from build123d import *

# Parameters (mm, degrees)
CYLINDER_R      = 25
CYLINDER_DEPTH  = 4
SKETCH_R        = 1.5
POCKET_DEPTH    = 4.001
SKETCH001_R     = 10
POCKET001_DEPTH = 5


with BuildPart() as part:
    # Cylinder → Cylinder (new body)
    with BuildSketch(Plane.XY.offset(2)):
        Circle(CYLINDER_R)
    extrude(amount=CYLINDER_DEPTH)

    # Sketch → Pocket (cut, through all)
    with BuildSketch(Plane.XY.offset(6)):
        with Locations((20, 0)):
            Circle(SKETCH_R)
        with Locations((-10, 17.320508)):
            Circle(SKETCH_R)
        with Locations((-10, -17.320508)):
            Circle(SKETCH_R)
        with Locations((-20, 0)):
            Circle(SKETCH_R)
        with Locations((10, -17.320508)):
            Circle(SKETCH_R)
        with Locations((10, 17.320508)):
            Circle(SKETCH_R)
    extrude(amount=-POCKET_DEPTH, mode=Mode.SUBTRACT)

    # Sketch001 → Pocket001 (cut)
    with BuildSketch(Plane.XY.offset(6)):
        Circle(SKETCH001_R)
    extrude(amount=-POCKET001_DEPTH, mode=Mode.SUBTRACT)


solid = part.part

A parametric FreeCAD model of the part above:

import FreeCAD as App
import Part
import Sketcher

V = App.Vector

doc = App.newDocument("Part")
params = doc.addObject("Spreadsheet::Sheet", "Params")
for row, (alias, value) in enumerate([
    ("sketch1_diameter", "50 mm"),
    ("pad1_length", "4 mm"),
    ("sketch2_diameter", "3 mm"),
    ("sketch3_diameter", "20 mm"),
    ("pocket2_length", "5 mm"),
], start=1):
    params.set(f"A{row}", alias)
    params.set(f"B{row}", "=" + value)
    params.setAlias(f"B{row}", alias)

body = doc.addObject("PartDesign::Body", "Body")

# Sketch on XY plane
sketch1 = body.newObject("Sketcher::SketchObject", "Sketch")
sketch1.AttachmentSupport = (doc.getObject("XY_Plane"), [""])
sketch1.MapMode = "FlatFace"
sketch1.AttachmentOffset = App.Placement(V(0, 0, 2), App.Rotation())
sketch1.addGeometry(Part.Circle(V(0, 0, 0), V(0, 0, 1), 25), False)
sketch1.addConstraint(Sketcher.Constraint("Coincident", 0, 3, -1, 1))
sketch1.addConstraint(Sketcher.Constraint("Diameter", 0, 50.0))
sketch1.setExpression("Constraints[1]", "Params.sketch1_diameter")
pad1 = body.newObject("PartDesign::Pad", "Pad")
pad1.Profile = sketch1
pad1.setExpression("Length", "Params.pad1_length")

# Sketch on XY plane
sketch2 = body.newObject("Sketcher::SketchObject", "Sketch001")
sketch2.AttachmentSupport = (doc.getObject("XY_Plane"), [""])
sketch2.MapMode = "FlatFace"
sketch2.AttachmentOffset = App.Placement(V(0, 0, 6), App.Rotation())
sketch2.addGeometry(Part.Circle(V(20, 0, 0), V(0, 0, 1), 1.5), False)
sketch2.addGeometry(Part.Circle(V(-10, 17.3, 0), V(0, 0, 1), 1.5), False)
sketch2.addGeometry(Part.Circle(V(-10, -17.3, 0), V(0, 0, 1), 1.5), False)
sketch2.addGeometry(Part.Circle(V(-20, 0, 0), V(0, 0, 1), 1.5), False)
sketch2.addGeometry(Part.Circle(V(10, -17.3, 0), V(0, 0, 1), 1.5), False)
sketch2.addGeometry(Part.Circle(V(10, 17.3, 0), V(0, 0, 1), 1.5), False)
sketch2.addConstraint(Sketcher.Constraint("Equal", 0, 1))
sketch2.addConstraint(Sketcher.Constraint("Equal", 1, 2))
sketch2.addConstraint(Sketcher.Constraint("Equal", 2, 3))
sketch2.addConstraint(Sketcher.Constraint("Equal", 3, 4))
sketch2.addConstraint(Sketcher.Constraint("Equal", 4, 5))
sketch2.addConstraint(Sketcher.Constraint("Symmetric", 0, 3, 3, 3, -1, 1))
sketch2.addConstraint(Sketcher.Constraint("Symmetric", 1, 3, 4, 3, -1, 1))
sketch2.addConstraint(Sketcher.Constraint("Symmetric", 2, 3, 5, 3, -1, 1))
sketch2.addConstraint(Sketcher.Constraint("Symmetric", 2, 3, 4, 3, -2))
sketch2.addConstraint(Sketcher.Constraint("PointOnObject", 0, 3, -1))
sketch2.addConstraint(Sketcher.Constraint("Diameter", 0, 3.0))
sketch2.addConstraint(Sketcher.Constraint("DistanceX", -1, 1, 0, 3, 20.0))
sketch2.addConstraint(Sketcher.Constraint("DistanceX", 1, 3, -1, 1, 10.0))
sketch2.addConstraint(Sketcher.Constraint("DistanceY", -1, 1, 1, 3, 17.320508))
sketch2.setExpression("Constraints[10]", "Params.sketch2_diameter")
pocket1 = body.newObject("PartDesign::Pocket", "Pocket")
pocket1.Profile = sketch2
pocket1.Type = "ThroughAll"

# Sketch on XY plane
sketch3 = body.newObject("Sketcher::SketchObject", "Sketch002")
sketch3.AttachmentSupport = (doc.getObject("XY_Plane"), [""])
sketch3.MapMode = "FlatFace"
sketch3.AttachmentOffset = App.Placement(V(0, 0, 6), App.Rotation())
sketch3.addGeometry(Part.Circle(V(0, 0, 0), V(0, 0, 1), 10), False)
sketch3.addConstraint(Sketcher.Constraint("Coincident", 0, 3, -1, 1))
sketch3.addConstraint(Sketcher.Constraint("Diameter", 0, 20.0))
sketch3.setExpression("Constraints[1]", "Params.sketch3_diameter")
pocket2 = body.newObject("PartDesign::Pocket", "Pocket001")
pocket2.Profile = sketch3
pocket2.setExpression("Length", "Params.pocket2_length")

doc.recompute()
